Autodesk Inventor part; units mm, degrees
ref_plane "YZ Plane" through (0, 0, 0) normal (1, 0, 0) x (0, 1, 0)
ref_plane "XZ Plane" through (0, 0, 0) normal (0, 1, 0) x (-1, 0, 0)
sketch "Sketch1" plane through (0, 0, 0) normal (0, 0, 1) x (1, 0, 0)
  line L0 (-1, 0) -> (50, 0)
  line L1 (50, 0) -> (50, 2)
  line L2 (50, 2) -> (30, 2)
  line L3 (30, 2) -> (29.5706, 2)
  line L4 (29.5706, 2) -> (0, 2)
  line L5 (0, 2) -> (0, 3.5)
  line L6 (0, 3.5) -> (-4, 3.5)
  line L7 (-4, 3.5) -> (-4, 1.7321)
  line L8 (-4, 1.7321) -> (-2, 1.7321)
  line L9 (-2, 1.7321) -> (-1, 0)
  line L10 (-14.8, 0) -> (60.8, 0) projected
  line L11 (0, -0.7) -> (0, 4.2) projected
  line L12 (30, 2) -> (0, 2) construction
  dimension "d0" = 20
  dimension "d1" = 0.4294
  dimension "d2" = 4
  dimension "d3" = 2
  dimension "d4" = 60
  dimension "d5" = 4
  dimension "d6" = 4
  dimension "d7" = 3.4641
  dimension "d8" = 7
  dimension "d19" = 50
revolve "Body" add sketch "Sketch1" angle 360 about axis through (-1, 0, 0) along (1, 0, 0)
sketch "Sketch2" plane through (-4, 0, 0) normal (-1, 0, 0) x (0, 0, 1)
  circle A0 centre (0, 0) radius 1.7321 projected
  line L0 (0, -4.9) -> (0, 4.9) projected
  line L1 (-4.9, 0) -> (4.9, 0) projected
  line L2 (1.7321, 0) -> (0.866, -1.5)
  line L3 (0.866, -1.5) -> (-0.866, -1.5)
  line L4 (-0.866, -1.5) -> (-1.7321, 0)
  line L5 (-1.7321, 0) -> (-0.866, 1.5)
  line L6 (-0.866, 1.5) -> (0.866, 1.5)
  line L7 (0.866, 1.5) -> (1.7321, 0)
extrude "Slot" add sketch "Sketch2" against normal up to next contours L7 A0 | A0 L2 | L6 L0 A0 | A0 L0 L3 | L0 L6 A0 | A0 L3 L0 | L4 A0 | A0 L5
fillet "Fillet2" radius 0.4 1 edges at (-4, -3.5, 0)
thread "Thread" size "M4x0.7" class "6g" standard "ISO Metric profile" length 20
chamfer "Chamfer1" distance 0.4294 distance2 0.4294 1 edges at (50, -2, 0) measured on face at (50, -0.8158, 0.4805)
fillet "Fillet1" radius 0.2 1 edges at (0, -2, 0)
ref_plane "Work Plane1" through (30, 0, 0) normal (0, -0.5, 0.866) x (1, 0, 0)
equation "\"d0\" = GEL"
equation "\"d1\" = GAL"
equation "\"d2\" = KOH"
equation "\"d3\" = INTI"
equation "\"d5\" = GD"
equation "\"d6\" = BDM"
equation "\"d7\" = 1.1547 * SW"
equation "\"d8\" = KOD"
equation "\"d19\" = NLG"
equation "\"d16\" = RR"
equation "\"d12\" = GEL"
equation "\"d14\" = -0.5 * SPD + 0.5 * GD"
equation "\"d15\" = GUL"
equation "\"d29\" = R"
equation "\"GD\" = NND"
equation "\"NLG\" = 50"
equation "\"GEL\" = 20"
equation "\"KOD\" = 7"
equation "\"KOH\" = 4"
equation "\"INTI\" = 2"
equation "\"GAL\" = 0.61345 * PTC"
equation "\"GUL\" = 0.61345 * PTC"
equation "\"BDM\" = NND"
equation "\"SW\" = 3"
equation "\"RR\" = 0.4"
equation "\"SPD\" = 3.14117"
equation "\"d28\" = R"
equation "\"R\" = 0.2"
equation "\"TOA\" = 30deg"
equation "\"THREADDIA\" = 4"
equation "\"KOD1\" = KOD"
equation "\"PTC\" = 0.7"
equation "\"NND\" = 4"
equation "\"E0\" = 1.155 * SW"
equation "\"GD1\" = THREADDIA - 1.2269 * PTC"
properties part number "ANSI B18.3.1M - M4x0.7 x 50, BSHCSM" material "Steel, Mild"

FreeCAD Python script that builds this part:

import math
import FreeCAD as App
import Part
import Sketcher
from FreeCAD import Vector
Q = App.Units.Quantity


def edges_at(feature, points):
    """Names of the edges that pass closest to the given points."""
    edges = feature.Shape.Edges
    near = lambda p: min(range(len(edges)), key=lambda i: edges[i].distToShape(Part.Vertex(*p))[0])
    return sorted({f"Edge{near(p) + 1}" for p in points})

doc = App.newDocument("Part")
body = doc.addObject("PartDesign::Body", "Body")

# Sketch on XY plane
sketch1 = body.newObject("Sketcher::SketchObject", "Sketch")
sketch1.AttachmentSupport = (doc.getObject("XY_Plane"), [""])
sketch1.MapMode = "FlatFace"
sketch1.addGeometry(Part.LineSegment(Vector(-2, 1.7, 0), Vector(-1, 0, 0)), False)
sketch1.addGeometry(Part.LineSegment(Vector(-1, 0, 0), Vector(50, 0, 0)), False)
sketch1.addGeometry(Part.LineSegment(Vector(50, 0, 0), Vector(50, 2, 0)), False)
sketch1.addGeometry(Part.LineSegment(Vector(50, 2, 0), Vector(0, 2, 0)), False)
sketch1.addGeometry(Part.LineSegment(Vector(0, 2, 0), Vector(0, 3.5, 0)), False)
sketch1.addGeometry(Part.LineSegment(Vector(0, 3.5, 0), Vector(-4, 3.5, 0)), False)
sketch1.addGeometry(Part.LineSegment(Vector(-4, 3.5, 0), Vector(-4, 1.7, 0)), False)
sketch1.addGeometry(Part.LineSegment(Vector(-4, 1.7, 0), Vector(-2, 1.7, 0)), False)
sketch1.addConstraint(Sketcher.Constraint("Coincident", 0, 2, 1, 1))
sketch1.addConstraint(Sketcher.Constraint("Coincident", 1, 2, 2, 1))
sketch1.addConstraint(Sketcher.Constraint("Coincident", 2, 2, 3, 1))
sketch1.addConstraint(Sketcher.Constraint("Coincident", 3, 2, 4, 1))
sketch1.addConstraint(Sketcher.Constraint("Coincident", 4, 2, 5, 1))
sketch1.addConstraint(Sketcher.Constraint("Coincident", 5, 2, 6, 1))
sketch1.addConstraint(Sketcher.Constraint("Coincident", 6, 2, 7, 1))
sketch1.addConstraint(Sketcher.Constraint("Coincident", 7, 2, 0, 1))
sketch1.addConstraint(Sketcher.Constraint("Horizontal", 1))
sketch1.addConstraint(Sketcher.Constraint("Vertical", 2))
sketch1.addConstraint(Sketcher.Constraint("Horizontal", 3))
sketch1.addConstraint(Sketcher.Constraint("Vertical", 4))
sketch1.addConstraint(Sketcher.Constraint("Horizontal", 5))
sketch1.addConstraint(Sketcher.Constraint("Vertical", 6))
sketch1.addConstraint(Sketcher.Constraint("Horizontal", 7))
sketch1.addConstraint(Sketcher.Constraint("PointOnObject", 0, 2, -1))
sketch1.addConstraint(Sketcher.Constraint("PointOnObject", 3, 2, -2))
sketch1.addConstraint(Sketcher.Constraint("Equal", 7, 2))
sketch1.addConstraint(Sketcher.Constraint("DistanceX", 3, 2, 3, 1, Q("50 mm")))
sketch1.addConstraint(Sketcher.Constraint("DistanceX", 5, 2, 5, 1, Q("4 mm")))
sketch1.addConstraint(Sketcher.Constraint("DistanceX", 7, 1, 7, 2, Q("2 mm")))
sketch1.addConstraint(Sketcher.Constraint("Distance", 0, Q("2 mm")))
sketch1.addConstraint(Sketcher.Constraint("DistanceX", 1, 1, 1, 2, Q("51 mm")))
sketch1.addConstraint(Sketcher.Constraint("DistanceY", 4, 1, 4, 2, Q("1.5 mm")))
revolution = body.newObject("PartDesign::Revolution", "Revolution")
revolution.Profile = sketch1
revolution.ReferenceAxis = (sketch1, ["H_Axis"])
revolution.Angle = 360

# Sketch on YZ plane
sketch2 = body.newObject("Sketcher::SketchObject", "Sketch001")
sketch2.AttachmentSupport = (doc.getObject("YZ_Plane"), [""])
sketch2.MapMode = "FlatFace"
sketch2.AttachmentOffset = App.Placement(Vector(0, 0, -4), App.Rotation())
sketch2.addGeometry(Part.LineSegment(Vector(1.5, 0.9, 0), Vector(0, 1.7, 0)), False)
sketch2.addGeometry(Part.ArcOfCircle(Part.Circle(Vector(0, 0, 0), Vector(0, 0, 1), 1.7), math.radians(30), math.radians(90)), False)
sketch2.addGeometry(Part.ArcOfCircle(Part.Circle(Vector(0, 0, 0), Vector(0, 0, 1), 1.7), math.radians(90), math.radians(150)), False)
sketch2.addGeometry(Part.LineSegment(Vector(0, 1.7, 0), Vector(-1.5, 0.9, 0)), False)
sketch2.addGeometry(Part.ArcOfCircle(Part.Circle(Vector(0, 0, 0), Vector(0, 0, 1), 1.7), math.radians(-30), math.radians(30)), False)
sketch2.addGeometry(Part.LineSegment(Vector(1.5, 0.9, 0), Vector(1.5, -0.9, 0)), False)
sketch2.addGeometry(Part.LineSegment(Vector(-1.5, 0.9, 0), Vector(-1.5, -0.9, 0)), False)
sketch2.addGeometry(Part.ArcOfCircle(Part.Circle(Vector(0, 0, 0), Vector(0, 0, 1), 1.7), math.radians(150), math.radians(210)), False)
sketch2.addGeometry(Part.LineSegment(Vector(-1.5, -0.9, 0), Vector(0, -1.7, 0)), False)
sketch2.addGeometry(Part.ArcOfCircle(Part.Circle(Vector(0, 0, 0), Vector(0, 0, 1), 1.7), math.radians(-150), math.radians(-90)), False)
sketch2.addGeometry(Part.ArcOfCircle(Part.Circle(Vector(0, 0, 0), Vector(0, 0, 1), 1.7), math.radians(-90), math.radians(-30)), False)
sketch2.addGeometry(Part.LineSegment(Vector(0, -1.7, 0), Vector(1.5, -0.9, 0)), False)
sketch2.addConstraint(Sketcher.Constraint("Coincident", 0, 1, 1, 1))
sketch2.addConstraint(Sketcher.Constraint("Coincident", 1, 2, 0, 2))
sketch2.addConstraint(Sketcher.Constraint("Coincident", 2, 1, 3, 1))
sketch2.addConstraint(Sketcher.Constraint("Coincident", 3, 2, 2, 2))
sketch2.addConstraint(Sketcher.Constraint("Coincident", 4, 1, 5, 2))
sketch2.addConstraint(Sketcher.Constraint("Coincident", 5, 1, 4, 2))
sketch2.addConstraint(Sketcher.Constraint("Coincident", 6, 1, 7, 1))
sketch2.addConstraint(Sketcher.Constraint("Coincident", 7, 2, 6, 2))
sketch2.addConstraint(Sketcher.Constraint("Coincident", 8, 1, 9, 1))
sketch2.addConstraint(Sketcher.Constraint("Coincident", 9, 2, 8, 2))
sketch2.addConstraint(Sketcher.Constraint("Coincident", 10, 1, 11, 1))
sketch2.addConstraint(Sketcher.Constraint("Coincident", 11, 2, 10, 2))
sketch2.addConstraint(Sketcher.Constraint("Vertical", 5))
sketch2.addConstraint(Sketcher.Constraint("Vertical", 6))
sketch2.addConstraint(Sketcher.Constraint("Coincident", 1, 3, -1, 1))
sketch2.addConstraint(Sketcher.Constraint("Coincident", 2, 3, -1, 1))
sketch2.addConstraint(Sketcher.Constraint("Coincident", 4, 3, -1, 1))
sketch2.addConstraint(Sketcher.Constraint("Coincident", 7, 3, -1, 1))
sketch2.addConstraint(Sketcher.Constraint("Coincident", 9, 3, -1, 1))
sketch2.addConstraint(Sketcher.Constraint("Coincident", 10, 3, -1, 1))
sketch2.addConstraint(Sketcher.Constraint("Coincident", 2, 1, 1, 2))
sketch2.addConstraint(Sketcher.Constraint("Coincident", 5, 1, 0, 1))
sketch2.addConstraint(Sketcher.Constraint("Coincident", 6, 1, 3, 2))
sketch2.addConstraint(Sketcher.Constraint("Coincident", 8, 1, 7, 2))
sketch2.addConstraint(Sketcher.Constraint("Coincident", 10, 1, 9, 2))
sketch2.addConstraint(Sketcher.Constraint("PointOnObject", 1, 2, -2))
sketch2.addConstraint(Sketcher.Constraint("PointOnObject", 9, 2, -2))
sketch2.addConstraint(Sketcher.Constraint("Parallel", 0, 8))
sketch2.addConstraint(Sketcher.Constraint("Parallel", 3, 11))
sketch2.addConstraint(Sketcher.Constraint("Radius", 1, Q("1.732 mm")))
sketch2.addConstraint(Sketcher.Constraint("DistanceX", -1, 1, 0, 1, Q("1.5 mm")))
pad1 = body.newObject("PartDesign::Pad", "Pad")
pad1.Profile = sketch2
pad1.Type = "UpToFirst"
doc.recompute()

fillet = body.newObject("PartDesign::Fillet", "Fillet")
fillet.Base = (pad1, edges_at(pad1, [(-4, -3.5, 0)]))
fillet.Radius = 0.4
doc.recompute()

chamfer = body.newObject("PartDesign::Chamfer", "Chamfer")
chamfer.Base = (fillet, edges_at(fillet, [(50, -2, 0)]))
chamfer.ChamferType = "Two distances"
chamfer.Size = 0.4294
chamfer.Size2 = 0.4294
doc.recompute()

fillet2 = body.newObject("PartDesign::Fillet", "Fillet001")
fillet2.Base = (chamfer, edges_at(chamfer, [(0, -2, 0)]))
fillet2.Radius = 0.2

doc.recompute()
